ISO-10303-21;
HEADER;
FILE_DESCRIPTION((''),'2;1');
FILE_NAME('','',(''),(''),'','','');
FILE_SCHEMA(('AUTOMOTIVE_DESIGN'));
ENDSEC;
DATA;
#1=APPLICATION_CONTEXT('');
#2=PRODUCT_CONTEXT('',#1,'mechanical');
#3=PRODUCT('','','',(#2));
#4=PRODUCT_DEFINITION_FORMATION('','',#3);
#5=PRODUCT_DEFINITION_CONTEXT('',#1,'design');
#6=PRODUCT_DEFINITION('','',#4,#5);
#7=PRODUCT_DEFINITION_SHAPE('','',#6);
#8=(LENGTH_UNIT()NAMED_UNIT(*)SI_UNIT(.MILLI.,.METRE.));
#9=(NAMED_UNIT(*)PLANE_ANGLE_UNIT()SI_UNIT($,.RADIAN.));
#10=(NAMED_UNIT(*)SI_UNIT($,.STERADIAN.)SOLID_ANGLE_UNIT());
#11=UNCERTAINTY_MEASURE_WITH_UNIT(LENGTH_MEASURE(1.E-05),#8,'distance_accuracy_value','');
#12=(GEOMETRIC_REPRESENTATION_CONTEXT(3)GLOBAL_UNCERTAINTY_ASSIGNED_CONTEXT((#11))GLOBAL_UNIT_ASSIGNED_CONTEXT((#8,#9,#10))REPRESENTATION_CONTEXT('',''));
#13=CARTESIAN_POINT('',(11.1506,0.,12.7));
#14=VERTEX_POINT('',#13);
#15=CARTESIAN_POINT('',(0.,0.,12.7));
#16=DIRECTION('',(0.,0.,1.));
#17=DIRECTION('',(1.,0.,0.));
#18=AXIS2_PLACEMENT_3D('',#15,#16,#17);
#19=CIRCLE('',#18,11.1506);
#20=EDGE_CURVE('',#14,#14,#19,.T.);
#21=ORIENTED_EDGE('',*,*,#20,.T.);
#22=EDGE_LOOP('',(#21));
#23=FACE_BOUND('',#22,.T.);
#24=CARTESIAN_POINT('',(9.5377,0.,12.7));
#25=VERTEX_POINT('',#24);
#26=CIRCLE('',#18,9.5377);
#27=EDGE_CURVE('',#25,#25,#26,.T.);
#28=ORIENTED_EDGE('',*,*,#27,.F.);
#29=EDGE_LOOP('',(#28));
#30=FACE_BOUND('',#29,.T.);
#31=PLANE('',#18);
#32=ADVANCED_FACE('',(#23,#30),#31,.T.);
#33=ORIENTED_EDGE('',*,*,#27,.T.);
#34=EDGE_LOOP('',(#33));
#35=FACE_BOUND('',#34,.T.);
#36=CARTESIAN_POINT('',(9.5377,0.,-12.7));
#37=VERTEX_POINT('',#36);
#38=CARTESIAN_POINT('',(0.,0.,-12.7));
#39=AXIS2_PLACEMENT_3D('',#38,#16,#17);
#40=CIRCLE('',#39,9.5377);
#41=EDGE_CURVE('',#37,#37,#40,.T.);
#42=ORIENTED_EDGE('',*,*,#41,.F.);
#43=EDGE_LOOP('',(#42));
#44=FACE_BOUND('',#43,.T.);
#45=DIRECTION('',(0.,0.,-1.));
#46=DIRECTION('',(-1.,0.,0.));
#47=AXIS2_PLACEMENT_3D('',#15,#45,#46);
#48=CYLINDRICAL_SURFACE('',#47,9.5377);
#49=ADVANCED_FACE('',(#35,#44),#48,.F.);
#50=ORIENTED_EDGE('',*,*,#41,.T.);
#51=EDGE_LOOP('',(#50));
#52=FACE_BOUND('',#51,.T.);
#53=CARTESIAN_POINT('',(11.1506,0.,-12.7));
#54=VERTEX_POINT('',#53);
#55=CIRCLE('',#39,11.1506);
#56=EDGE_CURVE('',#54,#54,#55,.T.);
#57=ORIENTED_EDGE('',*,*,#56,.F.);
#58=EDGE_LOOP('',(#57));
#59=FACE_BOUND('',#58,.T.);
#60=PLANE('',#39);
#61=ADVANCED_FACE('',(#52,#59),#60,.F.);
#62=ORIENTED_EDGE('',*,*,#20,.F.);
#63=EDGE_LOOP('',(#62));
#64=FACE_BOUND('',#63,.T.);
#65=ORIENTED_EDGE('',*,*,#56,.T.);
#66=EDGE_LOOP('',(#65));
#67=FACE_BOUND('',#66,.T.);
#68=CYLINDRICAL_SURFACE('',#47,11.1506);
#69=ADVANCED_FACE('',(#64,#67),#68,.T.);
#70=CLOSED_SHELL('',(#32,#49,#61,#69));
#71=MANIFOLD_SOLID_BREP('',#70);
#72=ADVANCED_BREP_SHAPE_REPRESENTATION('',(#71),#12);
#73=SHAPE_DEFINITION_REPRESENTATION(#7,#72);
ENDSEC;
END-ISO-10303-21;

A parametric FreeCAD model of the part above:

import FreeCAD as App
import Part
import Sketcher
from FreeCAD import Vector
Q = App.Units.Quantity

doc = App.newDocument("Part")
params = doc.addObject("Spreadsheet::Sheet", "Params")
for row, (alias, value) in enumerate([
    ("sketch1_diameter", "0.878 in"),
    ("sketch1_diameter2", "0.751 in"),
    ("pad1_length", "1 in"),
], start=1):
    params.set(f"A{row}", alias)
    params.set(f"B{row}", "=" + value)
    params.setAlias(f"B{row}", alias)

body = doc.addObject("PartDesign::Body", "Body")

# Sketch on XY plane
sketch1 = body.newObject("Sketcher::SketchObject", "Sketch")
sketch1.AttachmentSupport = (doc.getObject("XY_Plane"), [""])
sketch1.MapMode = "FlatFace"
sketch1.addGeometry(Part.Circle(Vector(0, 0, 0), Vector(0, 0, 1), 11), False)
sketch1.addGeometry(Part.Circle(Vector(0, 0, 0), Vector(0, 0, 1), 10), False)
sketch1.addConstraint(Sketcher.Constraint("Coincident", 0, 3, -1, 1))
sketch1.addConstraint(Sketcher.Constraint("Coincident", 1, 3, -1, 1))
sketch1.addConstraint(Sketcher.Constraint("Diameter", 0, Q("0.878 in")))
sketch1.addConstraint(Sketcher.Constraint("Diameter", 1, Q("0.751 in")))
sketch1.setExpression("Constraints[2]", "Params.sketch1_diameter")
sketch1.setExpression("Constraints[3]", "Params.sketch1_diameter2")
pad1 = body.newObject("PartDesign::Pad", "Pad")
pad1.Profile = sketch1
pad1.setExpression("Length", "Params.pad1_length")
pad1.Midplane = True

doc.recompute()
